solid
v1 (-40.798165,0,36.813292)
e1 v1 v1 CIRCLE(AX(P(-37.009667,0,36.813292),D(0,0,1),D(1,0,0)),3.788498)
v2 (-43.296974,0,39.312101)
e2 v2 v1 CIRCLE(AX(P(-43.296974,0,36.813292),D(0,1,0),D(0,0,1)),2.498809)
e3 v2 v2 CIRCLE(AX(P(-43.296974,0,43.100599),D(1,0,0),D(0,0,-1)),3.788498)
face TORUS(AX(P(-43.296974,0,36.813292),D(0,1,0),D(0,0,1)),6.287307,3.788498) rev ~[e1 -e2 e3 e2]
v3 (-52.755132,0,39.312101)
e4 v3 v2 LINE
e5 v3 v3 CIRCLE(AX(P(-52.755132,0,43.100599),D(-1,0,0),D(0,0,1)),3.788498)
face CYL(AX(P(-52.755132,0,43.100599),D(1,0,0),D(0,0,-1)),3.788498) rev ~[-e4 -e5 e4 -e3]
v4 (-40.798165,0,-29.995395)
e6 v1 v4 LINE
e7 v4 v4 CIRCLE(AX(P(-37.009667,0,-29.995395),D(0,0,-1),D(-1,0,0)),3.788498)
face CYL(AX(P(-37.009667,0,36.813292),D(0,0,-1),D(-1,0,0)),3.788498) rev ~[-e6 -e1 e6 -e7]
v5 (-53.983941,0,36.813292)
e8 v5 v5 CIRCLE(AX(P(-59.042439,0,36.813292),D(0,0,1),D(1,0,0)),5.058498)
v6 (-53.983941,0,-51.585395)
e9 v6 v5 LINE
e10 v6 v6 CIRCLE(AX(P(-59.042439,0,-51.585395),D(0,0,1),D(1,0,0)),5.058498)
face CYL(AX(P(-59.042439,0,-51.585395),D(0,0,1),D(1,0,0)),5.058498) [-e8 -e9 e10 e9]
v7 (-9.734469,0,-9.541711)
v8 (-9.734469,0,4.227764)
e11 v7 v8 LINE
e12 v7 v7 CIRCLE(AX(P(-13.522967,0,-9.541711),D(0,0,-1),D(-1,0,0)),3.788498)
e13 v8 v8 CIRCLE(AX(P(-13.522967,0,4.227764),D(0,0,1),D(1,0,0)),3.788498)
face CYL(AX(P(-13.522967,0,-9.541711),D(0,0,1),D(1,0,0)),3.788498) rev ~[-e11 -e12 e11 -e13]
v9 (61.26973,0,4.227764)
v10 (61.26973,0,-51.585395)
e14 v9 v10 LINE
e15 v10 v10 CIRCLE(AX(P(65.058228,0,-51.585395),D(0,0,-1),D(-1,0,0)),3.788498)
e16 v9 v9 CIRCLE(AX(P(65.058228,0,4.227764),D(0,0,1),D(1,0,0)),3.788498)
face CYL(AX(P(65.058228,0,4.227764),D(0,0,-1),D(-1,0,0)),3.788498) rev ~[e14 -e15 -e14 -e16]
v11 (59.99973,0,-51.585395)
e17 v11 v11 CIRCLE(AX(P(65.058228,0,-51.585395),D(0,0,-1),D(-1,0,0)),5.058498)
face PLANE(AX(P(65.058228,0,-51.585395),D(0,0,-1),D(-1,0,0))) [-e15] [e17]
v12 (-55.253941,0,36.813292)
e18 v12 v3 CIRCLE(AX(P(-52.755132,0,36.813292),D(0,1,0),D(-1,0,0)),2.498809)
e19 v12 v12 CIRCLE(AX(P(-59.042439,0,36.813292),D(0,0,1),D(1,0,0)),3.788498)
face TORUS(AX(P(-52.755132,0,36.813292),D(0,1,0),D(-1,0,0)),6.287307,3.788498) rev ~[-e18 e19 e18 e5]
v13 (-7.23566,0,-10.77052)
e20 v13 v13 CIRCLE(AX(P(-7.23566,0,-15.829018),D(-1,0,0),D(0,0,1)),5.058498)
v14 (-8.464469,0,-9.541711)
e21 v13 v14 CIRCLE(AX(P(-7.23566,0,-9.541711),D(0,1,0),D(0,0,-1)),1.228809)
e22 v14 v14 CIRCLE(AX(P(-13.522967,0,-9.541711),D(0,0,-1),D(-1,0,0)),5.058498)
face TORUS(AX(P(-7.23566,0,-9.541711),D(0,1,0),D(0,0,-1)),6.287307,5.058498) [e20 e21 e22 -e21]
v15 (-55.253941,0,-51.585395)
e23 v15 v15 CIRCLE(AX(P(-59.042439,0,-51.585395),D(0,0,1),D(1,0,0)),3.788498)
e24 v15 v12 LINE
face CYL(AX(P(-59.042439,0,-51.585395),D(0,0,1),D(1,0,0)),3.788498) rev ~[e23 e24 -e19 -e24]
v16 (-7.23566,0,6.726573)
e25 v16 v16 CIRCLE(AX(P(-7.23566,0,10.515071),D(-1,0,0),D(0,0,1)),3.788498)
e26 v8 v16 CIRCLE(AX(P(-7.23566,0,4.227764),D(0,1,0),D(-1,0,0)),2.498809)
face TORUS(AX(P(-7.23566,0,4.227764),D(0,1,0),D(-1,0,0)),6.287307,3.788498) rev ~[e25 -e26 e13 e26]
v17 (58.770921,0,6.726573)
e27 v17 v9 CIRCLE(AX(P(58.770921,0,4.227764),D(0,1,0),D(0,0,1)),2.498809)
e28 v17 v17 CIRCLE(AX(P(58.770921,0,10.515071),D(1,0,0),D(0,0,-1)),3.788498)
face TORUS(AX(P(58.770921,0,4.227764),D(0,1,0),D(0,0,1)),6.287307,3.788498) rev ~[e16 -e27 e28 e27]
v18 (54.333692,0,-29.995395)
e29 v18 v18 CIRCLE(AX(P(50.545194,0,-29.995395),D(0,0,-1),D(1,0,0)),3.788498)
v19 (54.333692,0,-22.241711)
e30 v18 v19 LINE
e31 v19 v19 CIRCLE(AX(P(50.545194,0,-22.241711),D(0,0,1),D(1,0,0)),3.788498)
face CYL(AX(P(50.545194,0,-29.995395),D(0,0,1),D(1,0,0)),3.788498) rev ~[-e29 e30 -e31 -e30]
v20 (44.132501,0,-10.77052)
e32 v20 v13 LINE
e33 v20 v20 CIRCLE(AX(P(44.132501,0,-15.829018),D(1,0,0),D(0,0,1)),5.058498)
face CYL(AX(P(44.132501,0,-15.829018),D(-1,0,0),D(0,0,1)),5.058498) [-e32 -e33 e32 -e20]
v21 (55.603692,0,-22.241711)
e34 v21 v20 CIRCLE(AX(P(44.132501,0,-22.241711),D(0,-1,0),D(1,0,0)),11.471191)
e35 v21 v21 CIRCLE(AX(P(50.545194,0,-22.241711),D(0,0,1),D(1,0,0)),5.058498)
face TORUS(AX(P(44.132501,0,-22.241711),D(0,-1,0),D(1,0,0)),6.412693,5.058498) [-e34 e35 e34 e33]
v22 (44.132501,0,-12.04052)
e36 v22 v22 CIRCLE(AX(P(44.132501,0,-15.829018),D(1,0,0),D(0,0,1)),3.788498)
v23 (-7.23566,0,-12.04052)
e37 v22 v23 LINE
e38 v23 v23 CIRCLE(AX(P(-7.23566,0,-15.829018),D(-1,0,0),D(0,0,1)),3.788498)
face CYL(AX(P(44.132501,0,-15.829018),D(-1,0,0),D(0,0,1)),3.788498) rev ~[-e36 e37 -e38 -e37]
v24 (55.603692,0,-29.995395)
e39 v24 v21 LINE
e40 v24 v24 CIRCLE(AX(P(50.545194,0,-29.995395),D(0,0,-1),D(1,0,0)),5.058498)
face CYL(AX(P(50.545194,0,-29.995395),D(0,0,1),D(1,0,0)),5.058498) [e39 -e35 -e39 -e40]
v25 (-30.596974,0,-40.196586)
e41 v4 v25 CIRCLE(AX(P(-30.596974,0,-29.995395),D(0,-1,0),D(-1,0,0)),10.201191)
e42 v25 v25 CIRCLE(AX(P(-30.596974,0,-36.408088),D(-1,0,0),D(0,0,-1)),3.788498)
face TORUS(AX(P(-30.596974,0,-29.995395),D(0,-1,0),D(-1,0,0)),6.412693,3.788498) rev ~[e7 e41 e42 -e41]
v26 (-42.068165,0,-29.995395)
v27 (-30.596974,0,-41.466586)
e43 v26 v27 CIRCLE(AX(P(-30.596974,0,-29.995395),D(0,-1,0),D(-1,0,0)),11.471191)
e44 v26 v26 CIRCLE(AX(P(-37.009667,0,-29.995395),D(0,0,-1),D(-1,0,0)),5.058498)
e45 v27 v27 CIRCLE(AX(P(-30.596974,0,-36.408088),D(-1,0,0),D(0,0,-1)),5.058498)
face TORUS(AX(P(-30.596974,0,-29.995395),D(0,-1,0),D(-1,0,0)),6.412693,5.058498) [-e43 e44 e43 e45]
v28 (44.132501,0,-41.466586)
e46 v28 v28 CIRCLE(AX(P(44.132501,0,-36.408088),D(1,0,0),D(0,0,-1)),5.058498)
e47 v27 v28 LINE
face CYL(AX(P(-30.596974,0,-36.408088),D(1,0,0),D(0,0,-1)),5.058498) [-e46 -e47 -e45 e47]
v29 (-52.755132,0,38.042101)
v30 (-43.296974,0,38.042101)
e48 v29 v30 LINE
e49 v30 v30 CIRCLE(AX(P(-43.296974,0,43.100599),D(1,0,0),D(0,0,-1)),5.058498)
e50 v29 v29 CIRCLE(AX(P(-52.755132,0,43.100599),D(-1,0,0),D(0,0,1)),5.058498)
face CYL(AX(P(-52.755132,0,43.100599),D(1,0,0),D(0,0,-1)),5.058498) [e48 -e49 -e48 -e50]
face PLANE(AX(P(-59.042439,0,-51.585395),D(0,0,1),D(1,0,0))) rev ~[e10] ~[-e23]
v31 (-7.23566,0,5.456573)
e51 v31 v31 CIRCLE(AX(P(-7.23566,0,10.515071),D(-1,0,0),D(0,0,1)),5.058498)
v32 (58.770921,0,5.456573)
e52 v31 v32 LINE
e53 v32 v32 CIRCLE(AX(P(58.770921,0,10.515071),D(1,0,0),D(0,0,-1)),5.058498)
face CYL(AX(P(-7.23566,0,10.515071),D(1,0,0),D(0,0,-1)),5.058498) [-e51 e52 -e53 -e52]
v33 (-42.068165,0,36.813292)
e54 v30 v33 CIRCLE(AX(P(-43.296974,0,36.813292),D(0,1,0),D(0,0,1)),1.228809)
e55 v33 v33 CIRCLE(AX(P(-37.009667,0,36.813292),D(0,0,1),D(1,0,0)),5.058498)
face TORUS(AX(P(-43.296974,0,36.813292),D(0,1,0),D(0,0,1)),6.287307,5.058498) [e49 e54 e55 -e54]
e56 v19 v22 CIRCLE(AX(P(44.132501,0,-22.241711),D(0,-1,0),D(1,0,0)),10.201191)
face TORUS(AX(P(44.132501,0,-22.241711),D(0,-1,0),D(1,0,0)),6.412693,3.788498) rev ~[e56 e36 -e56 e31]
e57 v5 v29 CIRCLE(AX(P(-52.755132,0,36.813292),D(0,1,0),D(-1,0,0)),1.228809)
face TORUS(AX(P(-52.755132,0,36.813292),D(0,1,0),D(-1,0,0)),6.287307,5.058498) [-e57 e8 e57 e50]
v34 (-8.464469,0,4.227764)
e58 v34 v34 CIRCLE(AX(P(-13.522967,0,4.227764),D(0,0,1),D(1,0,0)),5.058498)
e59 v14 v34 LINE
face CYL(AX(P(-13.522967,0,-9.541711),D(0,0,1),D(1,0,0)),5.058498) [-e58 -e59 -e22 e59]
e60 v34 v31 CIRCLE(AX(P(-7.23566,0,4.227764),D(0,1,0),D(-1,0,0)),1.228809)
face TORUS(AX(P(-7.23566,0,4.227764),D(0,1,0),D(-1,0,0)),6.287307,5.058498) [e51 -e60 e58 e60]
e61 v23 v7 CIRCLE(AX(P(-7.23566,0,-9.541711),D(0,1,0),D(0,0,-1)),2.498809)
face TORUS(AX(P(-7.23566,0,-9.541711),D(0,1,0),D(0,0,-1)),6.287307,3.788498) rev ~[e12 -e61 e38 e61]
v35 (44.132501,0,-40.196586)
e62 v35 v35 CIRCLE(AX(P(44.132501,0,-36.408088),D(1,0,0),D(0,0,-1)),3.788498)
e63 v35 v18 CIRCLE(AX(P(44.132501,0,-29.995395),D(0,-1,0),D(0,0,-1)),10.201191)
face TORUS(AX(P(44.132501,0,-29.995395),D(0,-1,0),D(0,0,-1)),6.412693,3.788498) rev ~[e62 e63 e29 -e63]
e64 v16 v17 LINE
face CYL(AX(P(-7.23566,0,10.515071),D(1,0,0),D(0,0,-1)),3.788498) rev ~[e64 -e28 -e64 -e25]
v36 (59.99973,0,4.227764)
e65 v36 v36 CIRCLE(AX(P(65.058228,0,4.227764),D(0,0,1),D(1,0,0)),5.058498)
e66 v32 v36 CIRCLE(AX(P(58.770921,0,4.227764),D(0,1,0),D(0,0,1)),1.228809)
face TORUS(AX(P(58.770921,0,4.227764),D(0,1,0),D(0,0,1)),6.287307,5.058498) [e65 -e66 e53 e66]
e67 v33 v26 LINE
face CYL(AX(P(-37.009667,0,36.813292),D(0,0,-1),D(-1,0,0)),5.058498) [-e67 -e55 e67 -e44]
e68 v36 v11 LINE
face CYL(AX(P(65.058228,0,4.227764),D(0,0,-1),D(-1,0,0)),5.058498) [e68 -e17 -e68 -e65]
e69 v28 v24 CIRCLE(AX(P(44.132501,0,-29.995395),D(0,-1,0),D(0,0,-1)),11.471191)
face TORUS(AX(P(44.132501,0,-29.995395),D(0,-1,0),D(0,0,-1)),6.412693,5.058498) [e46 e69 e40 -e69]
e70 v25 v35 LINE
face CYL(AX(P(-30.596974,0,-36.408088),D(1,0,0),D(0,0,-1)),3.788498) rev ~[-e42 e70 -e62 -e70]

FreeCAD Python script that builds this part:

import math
import FreeCAD as App
import Part
import Sketcher
from FreeCAD import Vector
Q = App.Units.Quantity


def faces_at(feature, points):
    """Names of the faces that lie closest to the given points."""
    faces = feature.Shape.Faces
    near = lambda p: min(range(len(faces)), key=lambda i: faces[i].distToShape(Part.Vertex(*p))[0])
    return sorted({f"Face{near(p) + 1}" for p in points})

doc = App.newDocument("Part")
params = doc.addObject("Spreadsheet::Sheet", "Params")
for row, (alias, value) in enumerate([
    ("sketch2_radius", "0.25 in"),
    ("thickness_wall", "0.05 in"),
], start=1):
    params.set(f"A{row}", alias)
    params.set(f"B{row}", "=" + value)
    params.setAlias(f"B{row}", alias)

body = doc.addObject("PartDesign::Body", "Body")

sketch1 = body.newObject("Sketcher::SketchObject", "Sketch")
sketch1.AttachmentSupport = (doc.getObject("XY_Plane"), [""])
sketch1.MapMode = "FlatFace"
sketch1.AttachmentOffset = App.Placement(Vector(0, 0, -51.585395), App.Rotation())
sketch1.addGeometry(Part.Circle(Vector(-59, 0, 0), Vector(0, 0, 1), 5), False)
sketch1.addConstraint([
    Sketcher.Constraint("PointOnObject", 0, 3, -1),
    Sketcher.Constraint("Diameter", 0, 10.116995),
    Sketcher.Constraint("DistanceX", 0, 3, -1, 1, 59.042439),
])

sketch2 = body.newObject("Sketcher::SketchObject", "Sketch001")
sketch2.AttachmentSupport = (doc.getObject("XZ_Plane"), [""])
sketch2.MapMode = "FlatFace"
sketch2.addGeometry([
    Part.LineSegment(Vector(-59, -52, 0), Vector(-59, 37, 0)),
    Part.ArcOfCircle(Part.Circle(Vector(-53, 37, 0), Vector(0, 0, 1), 6), math.radians(90), math.radians(180)),
    Part.LineSegment(Vector(-53, 43, 0), Vector(-43, 43, 0)),
    Part.ArcOfCircle(Part.Circle(Vector(-43, 37, 0), Vector(0, 0, 1), 6), math.radians(0), math.radians(90)),
    Part.LineSegment(Vector(-37, 37, 0), Vector(-37, -30, 0)),
    Part.ArcOfCircle(Part.Circle(Vector(-31, -30, 0), Vector(0, 0, 1), 6), math.radians(180), math.radians(270)),
    Part.LineSegment(Vector(-31, -36, 0), Vector(44, -36, 0)),
    Part.ArcOfCircle(Part.Circle(Vector(44, -30, 0), Vector(0, 0, 1), 6), math.radians(-90), math.radians(0)),
    Part.LineSegment(Vector(50, -30, 0), Vector(50, -22, 0)),
    Part.ArcOfCircle(Part.Circle(Vector(44, -22, 0), Vector(0, 0, 1), 6), math.radians(0), math.radians(90)),
    Part.LineSegment(Vector(44, -16, 0), Vector(-7, -16, 0)),
    Part.ArcOfCircle(Part.Circle(Vector(-7, -10, 0), Vector(0, 0, 1), 6), math.radians(180), math.radians(270)),
    Part.LineSegment(Vector(-14, -10, 0), Vector(-14, 4, 0)),
    Part.ArcOfCircle(Part.Circle(Vector(-7, 4, 0), Vector(0, 0, 1), 6), math.radians(90), math.radians(180)),
    Part.LineSegment(Vector(-7, 11, 0), Vector(59, 11, 0)),
    Part.ArcOfCircle(Part.Circle(Vector(59, 4, 0), Vector(0, 0, 1), 6), math.radians(0), math.radians(90)),
    Part.LineSegment(Vector(65, 4, 0), Vector(65, -52, 0)),
], False)
sketch2.addConstraint([
    Sketcher.Constraint("Tangent", 0, 2, 1, 2),
    Sketcher.Constraint("Tangent", 1, 1, 2, 1),
    Sketcher.Constraint("Tangent", 2, 2, 3, 2),
    Sketcher.Constraint("Tangent", 3, 1, 4, 1),
    Sketcher.Constraint("Tangent", 4, 2, 5, 1),
    Sketcher.Constraint("Tangent", 5, 2, 6, 1),
    Sketcher.Constraint("Tangent", 6, 2, 7, 1),
    Sketcher.Constraint("Tangent", 7, 2, 8, 1),
    Sketcher.Constraint("Tangent", 8, 2, 9, 1),
    Sketcher.Constraint("Tangent", 9, 2, 10, 1),
    Sketcher.Constraint("Tangent", 10, 2, 11, 2),
    Sketcher.Constraint("Tangent", 11, 1, 12, 1),
    Sketcher.Constraint("Tangent", 12, 2, 13, 2),
    Sketcher.Constraint("Tangent", 13, 1, 14, 1),
    Sketcher.Constraint("Tangent", 14, 2, 15, 2),
    Sketcher.Constraint("Tangent", 15, 1, 16, 1),
    Sketcher.Constraint("Vertical", 0),
    Sketcher.Constraint("Horizontal", 2),
    Sketcher.Constraint("Vertical", 4),
    Sketcher.Constraint("Horizontal", 6),
    Sketcher.Constraint("Vertical", 8),
    Sketcher.Constraint("Horizontal", 10),
    Sketcher.Constraint("Vertical", 12),
    Sketcher.Constraint("Horizontal", 14),
    Sketcher.Constraint("Vertical", 16),
    Sketcher.Constraint("Equal", 1, 3),
    Sketcher.Constraint("Equal", 3, 5),
    Sketcher.Constraint("Equal", 5, 7),
    Sketcher.Constraint("Equal", 7, 9),
    Sketcher.Constraint("Equal", 9, 11),
    Sketcher.Constraint("Equal", 11, 13),
    Sketcher.Constraint("Equal", 13, 15),
    Sketcher.Constraint("Horizontal", 0, 1, 16, 2),
    Sketcher.Constraint("Radius", 1, Q("0.25 in")),
    Sketcher.Constraint("DistanceY", 0, 1, 5, 2, Q("0.6 in")),
    Sketcher.Constraint("DistanceY", 9, 3, 3, 3, Q("2.3250001 in")),
    Sketcher.Constraint("DistanceX", -1, 1, 7, 3, Q("1.7375 in")),
    Sketcher.Constraint("DistanceX", 10, 2, 10, 1, 51.368161),
    Sketcher.Constraint("DistanceX", 14, 1, 14, 2, 66.00658),
    Sketcher.Constraint("DistanceY", 16, 2, 16, 1, 55.813159),
    Sketcher.Constraint("DistanceX", 2, 1, 2, 2, 9.458157),
    Sketcher.Constraint("DistanceX", 6, 1, 6, 2, 74.729475),
    Sketcher.Constraint("DistanceY", 0, 1, 0, 2, 88.398687),
    Sketcher.Constraint("DistanceY", 9, 3, -1, 1, 22.241711),
])
sketch2.setExpression("Constraints[33]", "Params.sketch2_radius")
doc.recompute()

additivepipe = body.newObject("PartDesign::AdditivePipe", "AdditivePipe")
additivepipe.Profile = sketch1
additivepipe.Spine = (sketch2, ["Edge1", "Edge2", "Edge3", "Edge4", "Edge5", "Edge6", "Edge7", "Edge8", "Edge9", "Edge10", "Edge11", "Edge12", "Edge13", "Edge14", "Edge15", "Edge16", "Edge17"])
doc.recompute()

thickness = body.newObject("PartDesign::Thickness", "Thickness")
thickness.Base = (additivepipe, faces_at(additivepipe, [(-59.042, 0, -51.585), (65.058, 0, -51.585)]))
thickness.setExpression("Value", "Params.thickness_wall")
thickness.Reversed = True
thickness.Join = "Arc"

doc.recompute()
